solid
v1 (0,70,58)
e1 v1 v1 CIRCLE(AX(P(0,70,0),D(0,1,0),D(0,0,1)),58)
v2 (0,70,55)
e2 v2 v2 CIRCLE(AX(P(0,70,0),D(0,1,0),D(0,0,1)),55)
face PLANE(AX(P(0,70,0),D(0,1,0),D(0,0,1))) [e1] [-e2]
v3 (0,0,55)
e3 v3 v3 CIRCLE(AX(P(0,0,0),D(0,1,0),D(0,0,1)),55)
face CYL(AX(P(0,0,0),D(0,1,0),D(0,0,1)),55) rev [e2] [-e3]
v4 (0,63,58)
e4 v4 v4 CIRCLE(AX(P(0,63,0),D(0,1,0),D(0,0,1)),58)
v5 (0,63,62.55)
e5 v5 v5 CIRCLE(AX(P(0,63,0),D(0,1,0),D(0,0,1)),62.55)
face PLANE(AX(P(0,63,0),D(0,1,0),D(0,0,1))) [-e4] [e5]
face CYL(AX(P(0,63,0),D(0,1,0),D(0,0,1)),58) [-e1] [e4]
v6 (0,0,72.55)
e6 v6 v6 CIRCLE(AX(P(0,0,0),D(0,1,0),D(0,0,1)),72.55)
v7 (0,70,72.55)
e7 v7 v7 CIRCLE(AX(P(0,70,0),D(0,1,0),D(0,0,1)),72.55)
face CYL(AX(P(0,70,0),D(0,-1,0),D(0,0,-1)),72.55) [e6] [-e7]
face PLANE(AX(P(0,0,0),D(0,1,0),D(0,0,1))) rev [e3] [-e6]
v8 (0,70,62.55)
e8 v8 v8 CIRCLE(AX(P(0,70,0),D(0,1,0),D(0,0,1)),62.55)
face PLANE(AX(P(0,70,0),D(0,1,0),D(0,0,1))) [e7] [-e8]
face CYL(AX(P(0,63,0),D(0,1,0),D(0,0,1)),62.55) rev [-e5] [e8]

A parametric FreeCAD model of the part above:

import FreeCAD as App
import Part
import Sketcher
from FreeCAD import Vector

doc = App.newDocument("Part")
body = doc.addObject("PartDesign::Body", "Body")

# Sketch on XZ plane
sketch1 = doc.addObject("Sketcher::SketchObject", "Sketch")
body.addObject(sketch1)
sketch1.AttachmentSupport = (doc.XZ_Plane, [""])
sketch1.MapMode = "FlatFace"
sketch1.addGeometry(Part.Circle(Vector(0, 0, 0), Vector(0, 0, 1), 73), False)
sketch1.addConstraint([
    Sketcher.Constraint("Coincident", 0, 3, -1, 1),
    Sketcher.Constraint("Diameter", 0, 145.1),
])
pad1 = doc.addObject("PartDesign::Pad", "Pad")
body.addObject(pad1)
pad1.Profile = sketch1
pad1.Length = 70
pad1.Reversed = True

# Sketch on XZ plane
sketch2 = doc.addObject("Sketcher::SketchObject", "Sketch001")
body.addObject(sketch2)
sketch2.AttachmentSupport = (doc.XZ_Plane, [""])
sketch2.MapMode = "FlatFace"
sketch2.AttachmentOffset = App.Placement(Vector(0, 0, -70), App.Rotation())
sketch2.addGeometry([
    Part.Circle(Vector(0, 0, 0), Vector(0, 0, 1), 63),
    Part.Circle(Vector(0, 0, 0), Vector(0, 0, 1), 58),
], False)
sketch2.addConstraint([
    Sketcher.Constraint("Coincident", 0, 3, -1, 1),
    Sketcher.Constraint("Coincident", 1, 3, -1, 1),
    Sketcher.Constraint("Diameter", 1, 116.0),
    Sketcher.Constraint("Diameter", 0, 125.1),
])
pocket1 = doc.addObject("PartDesign::Pocket", "Pocket")
body.addObject(pocket1)
pocket1.Profile = sketch2
pocket1.Length = 7
pocket1.Reversed = True

# Sketch on XZ plane
sketch3 = doc.addObject("Sketcher::SketchObject", "Sketch002")
body.addObject(sketch3)
sketch3.AttachmentSupport = (doc.XZ_Plane, [""])
sketch3.MapMode = "FlatFace"
sketch3.AttachmentOffset = App.Placement(Vector(0, 0, -70), App.Rotation())
sketch3.addGeometry(Part.Circle(Vector(0, 0, 0), Vector(0, 0, 1), 55), False)
sketch3.addConstraint([
    Sketcher.Constraint("Coincident", 0, 3, -1, 1),
    Sketcher.Constraint("Diameter", 0, 110.0),
])
pocket2 = doc.addObject("PartDesign::Pocket", "Pocket001")
body.addObject(pocket2)
pocket2.Profile = sketch3
pocket2.Length = 70
pocket2.Reversed = True

doc.recompute()
